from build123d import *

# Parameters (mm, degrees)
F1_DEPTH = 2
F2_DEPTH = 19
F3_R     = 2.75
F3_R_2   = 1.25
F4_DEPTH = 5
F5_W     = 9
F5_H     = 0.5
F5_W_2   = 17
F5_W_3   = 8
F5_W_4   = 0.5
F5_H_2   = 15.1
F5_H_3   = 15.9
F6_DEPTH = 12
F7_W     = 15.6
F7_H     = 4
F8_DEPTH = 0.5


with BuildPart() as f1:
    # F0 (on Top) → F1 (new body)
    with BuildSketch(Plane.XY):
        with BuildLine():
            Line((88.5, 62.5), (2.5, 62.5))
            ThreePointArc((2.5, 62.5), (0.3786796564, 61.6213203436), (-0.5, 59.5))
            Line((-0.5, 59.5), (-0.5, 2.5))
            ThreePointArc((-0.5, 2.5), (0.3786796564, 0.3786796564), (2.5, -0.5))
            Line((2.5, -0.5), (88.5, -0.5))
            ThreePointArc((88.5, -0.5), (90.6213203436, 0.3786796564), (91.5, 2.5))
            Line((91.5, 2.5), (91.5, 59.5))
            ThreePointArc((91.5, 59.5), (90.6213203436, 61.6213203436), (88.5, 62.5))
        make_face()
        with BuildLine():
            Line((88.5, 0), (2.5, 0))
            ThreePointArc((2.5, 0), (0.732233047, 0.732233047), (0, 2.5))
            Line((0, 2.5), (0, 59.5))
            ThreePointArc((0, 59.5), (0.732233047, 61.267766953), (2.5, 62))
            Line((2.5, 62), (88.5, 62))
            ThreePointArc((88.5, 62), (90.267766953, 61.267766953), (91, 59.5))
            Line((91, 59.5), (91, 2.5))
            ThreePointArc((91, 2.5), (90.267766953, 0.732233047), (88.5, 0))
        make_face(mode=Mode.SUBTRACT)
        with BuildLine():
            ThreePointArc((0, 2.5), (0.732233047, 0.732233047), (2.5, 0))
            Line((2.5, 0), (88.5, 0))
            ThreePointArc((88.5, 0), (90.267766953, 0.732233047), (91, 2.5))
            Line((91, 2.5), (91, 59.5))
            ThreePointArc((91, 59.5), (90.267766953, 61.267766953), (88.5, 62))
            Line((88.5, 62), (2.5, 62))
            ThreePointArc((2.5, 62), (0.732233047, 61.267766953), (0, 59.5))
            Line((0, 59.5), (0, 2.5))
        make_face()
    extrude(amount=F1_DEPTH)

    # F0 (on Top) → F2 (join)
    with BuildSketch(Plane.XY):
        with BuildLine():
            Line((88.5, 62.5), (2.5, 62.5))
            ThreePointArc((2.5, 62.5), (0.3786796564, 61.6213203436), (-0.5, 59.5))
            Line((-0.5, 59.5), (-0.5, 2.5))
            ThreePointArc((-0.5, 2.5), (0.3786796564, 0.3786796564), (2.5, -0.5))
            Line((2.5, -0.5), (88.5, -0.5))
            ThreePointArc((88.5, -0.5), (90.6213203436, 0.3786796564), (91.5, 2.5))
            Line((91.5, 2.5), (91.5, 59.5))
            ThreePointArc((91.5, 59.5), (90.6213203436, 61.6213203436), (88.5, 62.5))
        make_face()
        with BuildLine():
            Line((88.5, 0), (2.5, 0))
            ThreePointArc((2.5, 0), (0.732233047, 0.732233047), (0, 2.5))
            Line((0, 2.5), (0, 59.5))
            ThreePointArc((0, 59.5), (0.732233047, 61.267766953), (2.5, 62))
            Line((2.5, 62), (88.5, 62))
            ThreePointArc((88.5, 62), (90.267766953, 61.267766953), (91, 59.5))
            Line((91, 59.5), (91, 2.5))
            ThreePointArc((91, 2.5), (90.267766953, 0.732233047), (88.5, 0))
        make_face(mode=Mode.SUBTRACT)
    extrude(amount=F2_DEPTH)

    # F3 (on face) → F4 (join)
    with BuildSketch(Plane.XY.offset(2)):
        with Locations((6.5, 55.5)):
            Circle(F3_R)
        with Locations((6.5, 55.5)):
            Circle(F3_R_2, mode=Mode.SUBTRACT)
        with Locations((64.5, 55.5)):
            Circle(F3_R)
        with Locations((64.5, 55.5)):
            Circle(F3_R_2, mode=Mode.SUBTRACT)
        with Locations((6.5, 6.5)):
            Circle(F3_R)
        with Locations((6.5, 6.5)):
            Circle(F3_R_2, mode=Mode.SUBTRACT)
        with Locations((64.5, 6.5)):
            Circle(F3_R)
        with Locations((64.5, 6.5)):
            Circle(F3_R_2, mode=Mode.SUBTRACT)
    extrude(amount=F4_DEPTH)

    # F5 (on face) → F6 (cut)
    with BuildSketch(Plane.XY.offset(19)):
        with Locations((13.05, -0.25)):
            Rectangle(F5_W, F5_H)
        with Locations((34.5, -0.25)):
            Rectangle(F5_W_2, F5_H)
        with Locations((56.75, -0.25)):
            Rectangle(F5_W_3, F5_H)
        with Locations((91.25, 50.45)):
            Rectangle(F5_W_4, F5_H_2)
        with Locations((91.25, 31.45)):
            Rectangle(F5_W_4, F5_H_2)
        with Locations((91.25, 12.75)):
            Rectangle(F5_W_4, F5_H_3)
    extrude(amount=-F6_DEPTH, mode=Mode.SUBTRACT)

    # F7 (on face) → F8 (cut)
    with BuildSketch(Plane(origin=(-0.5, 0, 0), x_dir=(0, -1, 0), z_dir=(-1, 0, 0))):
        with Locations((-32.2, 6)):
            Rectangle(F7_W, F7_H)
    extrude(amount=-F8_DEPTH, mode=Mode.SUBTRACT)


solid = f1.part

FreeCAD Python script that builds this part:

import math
import FreeCAD as App
import Part
import Sketcher
from FreeCAD import Vector

doc = App.newDocument("Part")
body = doc.addObject("PartDesign::Body", "Body")

# Sketch on XY plane
sketch1 = doc.addObject("Sketcher::SketchObject", "Sketch")
body.addObject(sketch1)
sketch1.AttachmentSupport = (doc.XY_Plane, [""])
sketch1.MapMode = "FlatFace"
sketch1.addGeometry([
    Part.LineSegment(Vector(88.5, 62.5, 0), Vector(2.5, 62.5, 0)),  # 0
    Part.ArcOfCircle(Part.Circle(Vector(2.5, 59.5, 0), Vector(0, 0, 1), 3), math.radians(90), math.radians(180)),  # 1
    Part.LineSegment(Vector(-0.5, 59.5, 0), Vector(-0.5, 2.5, 0)),  # 2
    Part.ArcOfCircle(Part.Circle(Vector(2.5, 2.5, 0), Vector(0, 0, 1), 3), math.radians(180), math.radians(270)),  # 3
    Part.LineSegment(Vector(2.5, -0.5, 0), Vector(88.5, -0.5, 0)),  # 4
    Part.ArcOfCircle(Part.Circle(Vector(88.5, 2.5, 0), Vector(0, 0, 1), 3), math.radians(-90), math.radians(0)),  # 5
    Part.LineSegment(Vector(91.5, 2.5, 0), Vector(91.5, 59.5, 0)),  # 6
    Part.ArcOfCircle(Part.Circle(Vector(88.5, 59.5, 0), Vector(0, 0, 1), 3), math.radians(0), math.radians(90)),  # 7
], False)
sketch1.addConstraint([
    Sketcher.Constraint("Tangent", 0, 2, 1, 1),
    Sketcher.Constraint("Tangent", 1, 2, 2, 1),
    Sketcher.Constraint("Tangent", 2, 2, 3, 1),
    Sketcher.Constraint("Tangent", 3, 2, 4, 1),
    Sketcher.Constraint("Tangent", 4, 2, 5, 1),
    Sketcher.Constraint("Tangent", 5, 2, 6, 1),
    Sketcher.Constraint("Tangent", 6, 2, 7, 1),
    Sketcher.Constraint("Tangent", 7, 2, 0, 1),
    Sketcher.Constraint("Horizontal", 0),
    Sketcher.Constraint("Vertical", 2),
    Sketcher.Constraint("Horizontal", 4),
    Sketcher.Constraint("Vertical", 6),
    Sketcher.Constraint("Equal", 1, 3),
    Sketcher.Constraint("Equal", 3, 5),
    Sketcher.Constraint("Equal", 5, 7),
    Sketcher.Constraint("Radius", 1, 3.0),
    Sketcher.Constraint("DistanceX", 0, 2, 0, 1, 86.0),
    Sketcher.Constraint("DistanceY", 2, 2, 2, 1, 57.0),
    Sketcher.Constraint("DistanceX", -1, 1, 1, 3, 2.5),
    Sketcher.Constraint("DistanceY", -1, 1, 1, 3, 59.5),
])
pad1 = doc.addObject("PartDesign::Pad", "Pad")
body.addObject(pad1)
pad1.Profile = sketch1
pad1.Length = 2

# Sketch on XY plane
sketch2 = doc.addObject("Sketcher::SketchObject", "Sketch001")
body.addObject(sketch2)
sketch2.AttachmentSupport = (doc.XY_Plane, [""])
sketch2.MapMode = "FlatFace"
sketch2.addGeometry([
    Part.LineSegment(Vector(88.5, 62.5, 0), Vector(2.5, 62.5, 0)),  # 0
    Part.ArcOfCircle(Part.Circle(Vector(2.5, 59.5, 0), Vector(0, 0, 1), 3), math.radians(90), math.radians(180)),  # 1
    Part.LineSegment(Vector(-0.5, 59.5, 0), Vector(-0.5, 2.5, 0)),  # 2
    Part.ArcOfCircle(Part.Circle(Vector(2.5, 2.5, 0), Vector(0, 0, 1), 3), math.radians(180), math.radians(270)),  # 3
    Part.LineSegment(Vector(2.5, -0.5, 0), Vector(88.5, -0.5, 0)),  # 4
    Part.ArcOfCircle(Part.Circle(Vector(88.5, 2.5, 0), Vector(0, 0, 1), 3), math.radians(-90), math.radians(0)),  # 5
    Part.LineSegment(Vector(91.5, 2.5, 0), Vector(91.5, 59.5, 0)),  # 6
    Part.ArcOfCircle(Part.Circle(Vector(88.5, 59.5, 0), Vector(0, 0, 1), 3), math.radians(0), math.radians(90)),  # 7
    Part.ArcOfCircle(Part.Circle(Vector(88.5, 2.5, 0), Vector(0, 0, 1), 2.5), math.radians(-90), math.radians(0)),  # 8
    Part.LineSegment(Vector(88.5, 0, 0), Vector(2.5, 0, 0)),  # 9
    Part.ArcOfCircle(Part.Circle(Vector(2.5, 2.5, 0), Vector(0, 0, 1), 2.5), math.radians(180), math.radians(270)),  # 10
    Part.LineSegment(Vector(0, 2.5, 0), Vector(0, 59.5, 0)),  # 11
    Part.ArcOfCircle(Part.Circle(Vector(2.5, 59.5, 0), Vector(0, 0, 1), 2.5), math.radians(90), math.radians(180)),  # 12
    Part.LineSegment(Vector(2.5, 62, 0), Vector(88.5, 62, 0)),  # 13
    Part.ArcOfCircle(Part.Circle(Vector(88.5, 59.5, 0), Vector(0, 0, 1), 2.5), math.radians(0), math.radians(90)),  # 14
    Part.LineSegment(Vector(91, 59.5, 0), Vector(91, 2.5, 0)),  # 15
], False)
sketch2.addConstraint([
    Sketcher.Constraint("Tangent", 0, 2, 1, 1),
    Sketcher.Constraint("Tangent", 1, 2, 2, 1),
    Sketcher.Constraint("Tangent", 2, 2, 3, 1),
    Sketcher.Constraint("Tangent", 3, 2, 4, 1),
    Sketcher.Constraint("Tangent", 4, 2, 5, 1),
    Sketcher.Constraint("Tangent", 5, 2, 6, 1),
    Sketcher.Constraint("Tangent", 6, 2, 7, 1),
    Sketcher.Constraint("Tangent", 7, 2, 0, 1),
    Sketcher.Constraint("Tangent", 8, 1, 9, 1),
    Sketcher.Constraint("Tangent", 9, 2, 10, 2),
    Sketcher.Constraint("Tangent", 10, 1, 11, 1),
    Sketcher.Constraint("Tangent", 11, 2, 12, 2),
    Sketcher.Constraint("Tangent", 12, 1, 13, 1),
    Sketcher.Constraint("Tangent", 13, 2, 14, 2),
    Sketcher.Constraint("Tangent", 14, 1, 15, 1),
    Sketcher.Constraint("Tangent", 15, 2, 8, 2),
    Sketcher.Constraint("Horizontal", 0),
    Sketcher.Constraint("Vertical", 2),
    Sketcher.Constraint("Horizontal", 4),
    Sketcher.Constraint("Vertical", 6),
    Sketcher.Constraint("Horizontal", 9),
    Sketcher.Constraint("Vertical", 11),
    Sketcher.Constraint("Horizontal", 13),
    Sketcher.Constraint("Vertical", 15),
    Sketcher.Constraint("Coincident", 8, 3, 5, 3),
    Sketcher.Constraint("Coincident", 10, 3, 3, 3),
    Sketcher.Constraint("Coincident", 12, 3, 1, 3),
    Sketcher.Constraint("Equal", 1, 3),
    Sketcher.Constraint("Equal", 3, 5),
    Sketcher.Constraint("Equal", 5, 7),
    Sketcher.Constraint("Equal", 12, 14),
    Sketcher.Constraint("PointOnObject", 8, 1, -1),
    Sketcher.Constraint("PointOnObject", 10, 1, -2),
    Sketcher.Constraint("Radius", 1, 3.0),
    Sketcher.Constraint("Radius", 8, 2.5),
    Sketcher.Constraint("DistanceX", 0, 2, 0, 1, 86.0),
    Sketcher.Constraint("DistanceY", 2, 2, 2, 1, 57.0),
])
pad2 = doc.addObject("PartDesign::Pad", "Pad001")
body.addObject(pad2)
pad2.Profile = sketch2
pad2.Length = 19

# Sketch on XY plane
sketch3 = doc.addObject("Sketcher::SketchObject", "Sketch002")
body.addObject(sketch3)
sketch3.AttachmentSupport = (doc.XY_Plane, [""])
sketch3.MapMode = "FlatFace"
sketch3.AttachmentOffset = App.Placement(Vector(0, 0, 2), App.Rotation())
sketch3.addGeometry([
    Part.Circle(Vector(6.5, 55.5, 0), Vector(0, 0, 1), 2.75),  # 0
    Part.Circle(Vector(6.5, 55.5, 0), Vector(0, 0, 1), 1.25),  # 1
    Part.Circle(Vector(64.5, 55.5, 0), Vector(0, 0, 1), 2.75),  # 2
    Part.Circle(Vector(64.5, 55.5, 0), Vector(0, 0, 1), 1.25),  # 3
    Part.Circle(Vector(6.5, 6.5, 0), Vector(0, 0, 1), 2.75),  # 4
    Part.Circle(Vector(6.5, 6.5, 0), Vector(0, 0, 1), 1.25),  # 5
    Part.Circle(Vector(64.5, 6.5, 0), Vector(0, 0, 1), 2.75),  # 6
    Part.Circle(Vector(64.5, 6.5, 0), Vector(0, 0, 1), 1.25),  # 7
], False)
sketch3.addConstraint([
    Sketcher.Constraint("Coincident", 1, 3, 0, 3),
    Sketcher.Constraint("Coincident", 3, 3, 2, 3),
    Sketcher.Constraint("Coincident", 5, 3, 4, 3),
    Sketcher.Constraint("Coincident", 7, 3, 6, 3),
    Sketcher.Constraint("Equal", 0, 2),
    Sketcher.Constraint("Equal", 1, 3),
    Sketcher.Constraint("Equal", 2, 4),
    Sketcher.Constraint("Equal", 3, 5),
    Sketcher.Constraint("Equal", 4, 6),
    Sketcher.Constraint("Equal", 5, 7),
    Sketcher.Constraint("Horizontal", 1, 3, 2, 3),
    Sketcher.Constraint("Horizontal", 5, 3, 6, 3),
    Sketcher.Constraint("Vertical", 1, 3, 4, 3),
    Sketcher.Constraint("Vertical", 3, 3, 6, 3),
    Sketcher.Constraint("Diameter", 0, 5.5),
    Sketcher.Constraint("Diameter", 1, 2.5),
    Sketcher.Constraint("DistanceX", 0, 3, 2, 3, 58.0),
    Sketcher.Constraint("DistanceY", 4, 3, 0, 3, 49.0),
    Sketcher.Constraint("DistanceX", -1, 1, 0, 3, 6.5),
    Sketcher.Constraint("DistanceY", -1, 1, 0, 3, 55.5),
])
pad3 = doc.addObject("PartDesign::Pad", "Pad002")
body.addObject(pad3)
pad3.Profile = sketch3
pad3.Length = 5

# Sketch on XY plane
sketch4 = doc.addObject("Sketcher::SketchObject", "Sketch003")
body.addObject(sketch4)
sketch4.AttachmentSupport = (doc.XY_Plane, [""])
sketch4.MapMode = "FlatFace"
sketch4.AttachmentOffset = App.Placement(Vector(0, 0, 19), App.Rotation())
sketch4.addGeometry([
    Part.LineSegment(Vector(8.55, 0, 0), Vector(8.55, -0.5, 0)),  # 0
    Part.LineSegment(Vector(8.55, -0.5, 0), Vector(17.55, -0.5, 0)),  # 1
    Part.LineSegment(Vector(17.55, -0.5, 0), Vector(17.55, 0, 0)),  # 2
    Part.LineSegment(Vector(17.55, 0, 0), Vector(8.55, 0, 0)),  # 3
    Part.LineSegment(Vector(26, 0, 0), Vector(26, -0.5, 0)),  # 4
    Part.LineSegment(Vector(26, -0.5, 0), Vector(43, -0.5, 0)),  # 5
    Part.LineSegment(Vector(43, -0.5, 0), Vector(43, 0, 0)),  # 6
    Part.LineSegment(Vector(43, 0, 0), Vector(26, 0, 0)),  # 7
    Part.LineSegment(Vector(52.75, 0, 0), Vector(52.75, -0.5, 0)),  # 8
    Part.LineSegment(Vector(52.75, -0.5, 0), Vector(60.75, -0.5, 0)),  # 9
    Part.LineSegment(Vector(60.75, -0.5, 0), Vector(60.75, 0, 0)),  # 10
    Part.LineSegment(Vector(60.75, 0, 0), Vector(52.75, 0, 0)),  # 11
    Part.LineSegment(Vector(91, 58, 0), Vector(91, 42.9, 0)),  # 12
    Part.LineSegment(Vector(91, 42.9, 0), Vector(91.5, 42.9, 0)),  # 13
    Part.LineSegment(Vector(91.5, 42.9, 0), Vector(91.5, 58, 0)),  # 14
    Part.LineSegment(Vector(91.5, 58, 0), Vector(91, 58, 0)),  # 15
    Part.LineSegment(Vector(91, 39, 0), Vector(91, 23.9, 0)),  # 16
    Part.LineSegment(Vector(91, 23.9, 0), Vector(91.5, 23.9, 0)),  # 17
    Part.LineSegment(Vector(91.5, 23.9, 0), Vector(91.5, 39, 0)),  # 18
    Part.LineSegment(Vector(91.5, 39, 0), Vector(91, 39, 0)),  # 19
    Part.LineSegment(Vector(91, 20.7, 0), Vector(91, 4.8, 0)),  # 20
    Part.LineSegment(Vector(91, 4.8, 0), Vector(91.5, 4.8, 0)),  # 21
    Part.LineSegment(Vector(91.5, 4.8, 0), Vector(91.5, 20.7, 0)),  # 22
    Part.LineSegment(Vector(91.5, 20.7, 0), Vector(91, 20.7, 0)),  # 23
], False)
sketch4.addConstraint([
    Sketcher.Constraint("Coincident", 0, 2, 1, 1),
    Sketcher.Constraint("Coincident", 1, 2, 2, 1),
    Sketcher.Constraint("Coincident", 2, 2, 3, 1),
    Sketcher.Constraint("Coincident", 3, 2, 0, 1),
    Sketcher.Constraint("Coincident", 4, 2, 5, 1),
    Sketcher.Constraint("Coincident", 5, 2, 6, 1),
    Sketcher.Constraint("Coincident", 6, 2, 7, 1),
    Sketcher.Constraint("Coincident", 7, 2, 4, 1),
    Sketcher.Constraint("Coincident", 8, 2, 9, 1),
    Sketcher.Constraint("Coincident", 9, 2, 10, 1),
    Sketcher.Constraint("Coincident", 10, 2, 11, 1),
    Sketcher.Constraint("Coincident", 11, 2, 8, 1),
    Sketcher.Constraint("Coincident", 12, 2, 13, 1),
    Sketcher.Constraint("Coincident", 13, 2, 14, 1),
    Sketcher.Constraint("Coincident", 14, 2, 15, 1),
    Sketcher.Constraint("Coincident", 15, 2, 12, 1),
    Sketcher.Constraint("Coincident", 16, 2, 17, 1),
    Sketcher.Constraint("Coincident", 17, 2, 18, 1),
    Sketcher.Constraint("Coincident", 18, 2, 19, 1),
    Sketcher.Constraint("Coincident", 19, 2, 16, 1),
    Sketcher.Constraint("Coincident", 20, 2, 21, 1),
    Sketcher.Constraint("Coincident", 21, 2, 22, 1),
    Sketcher.Constraint("Coincident", 22, 2, 23, 1),
    Sketcher.Constraint("Coincident", 23, 2, 20, 1),
    Sketcher.Constraint("Vertical", 0),
    Sketcher.Constraint("Horizontal", 1),
    Sketcher.Constraint("Vertical", 2),
    Sketcher.Constraint("Horizontal", 3),
    Sketcher.Constraint("Vertical", 4),
    Sketcher.Constraint("Horizontal", 5),
    Sketcher.Constraint("Vertical", 6),
    Sketcher.Constraint("Horizontal", 7),
    Sketcher.Constraint("Vertical", 8),
    Sketcher.Constraint("Horizontal", 9),
    Sketcher.Constraint("Vertical", 10),
    Sketcher.Constraint("Horizontal", 11),
    Sketcher.Constraint("Vertical", 12),
    Sketcher.Constraint("Horizontal", 13),
    Sketcher.Constraint("Vertical", 14),
    Sketcher.Constraint("Horizontal", 15),
    Sketcher.Constraint("Vertical", 16),
    Sketcher.Constraint("Horizontal", 17),
    Sketcher.Constraint("Vertical", 18),
    Sketcher.Constraint("Horizontal", 19),
    Sketcher.Constraint("Vertical", 20),
    Sketcher.Constraint("Horizontal", 21),
    Sketcher.Constraint("Vertical", 22),
    Sketcher.Constraint("Horizontal", 23),
    Sketcher.Constraint("PointOnObject", 2, 2, -1),
    Sketcher.Constraint("PointOnObject", 6, 2, -1),
    Sketcher.Constraint("PointOnObject", 10, 2, -1),
    Sketcher.Constraint("Horizontal", 1, 2, 4, 2),
    Sketcher.Constraint("Horizontal", 5, 2, 8, 2),
    Sketcher.Constraint("Vertical", 15, 2, 16, 2),
    Sketcher.Constraint("Vertical", 14, 2, 17, 2),
    Sketcher.Constraint("Vertical", 19, 2, 20, 2),
    Sketcher.Constraint("Vertical", 18, 2, 21, 2),
    Sketcher.Constraint("Equal", 23, 0),
    Sketcher.Constraint("Equal", 14, 16),
    Sketcher.Constraint("DistanceX", 1, 1, 1, 2, 9.0),
    Sketcher.Constraint("DistanceX", 5, 1, 5, 2, 17.0),
    Sketcher.Constraint("DistanceX", 9, 1, 9, 2, 8.0),
    Sketcher.Constraint("DistanceX", 13, 1, 13, 2, 0.5),
    Sketcher.Constraint("DistanceY", 12, 2, 12, 1, 15.1),
    Sketcher.Constraint("DistanceY", 20, 2, 20, 1, 15.9),
    Sketcher.Constraint("DistanceX", -1, 1, 4, 2, 26.0),
    Sketcher.Constraint("DistanceX", -1, 1, 12, 2, 91.0),
    Sketcher.Constraint("DistanceY", -1, 1, 14, 2, 58.0),
    Sketcher.Constraint("DistanceY", -1, 1, 18, 2, 39.0),
    Sketcher.Constraint("DistanceY", -1, 1, 20, 2, 4.8),
    Sketcher.Constraint("DistanceX", 1, 2, 8, 2, 35.2),
    Sketcher.Constraint("DistanceX", -1, 1, 0, 2, 8.55),
])
pocket1 = doc.addObject("PartDesign::Pocket", "Pocket")
body.addObject(pocket1)
pocket1.Profile = sketch4
pocket1.Length = 12

# Sketch on YZ plane
sketch5 = doc.addObject("Sketcher::SketchObject", "Sketch004")
body.addObject(sketch5)
sketch5.AttachmentSupport = (doc.YZ_Plane, [""])
sketch5.MapMode = "FlatFace"
sketch5.AttachmentOffset = App.Placement(Vector(0, 0, -0.5), App.Rotation())
sketch5.addGeometry([
    Part.LineSegment(Vector(40, 8, 0), Vector(40, 4, 0)),
    Part.LineSegment(Vector(40, 4, 0), Vector(24.4, 4, 0)),
    Part.LineSegment(Vector(24.4, 4, 0), Vector(24.4, 8, 0)),
    Part.LineSegment(Vector(24.4, 8, 0), Vector(40, 8, 0)),
], False)
sketch5.addConstraint([
    Sketcher.Constraint("Coincident", 0, 2, 1, 1),
    Sketcher.Constraint("Coincident", 1, 2, 2, 1),
    Sketcher.Constraint("Coincident", 2, 2, 3, 1),
    Sketcher.Constraint("Coincident", 3, 2, 0, 1),
    Sketcher.Constraint("Vertical", 0),
    Sketcher.Constraint("Horizontal", 1),
    Sketcher.Constraint("Vertical", 2),
    Sketcher.Constraint("Horizontal", 3),
    Sketcher.Constraint("DistanceY", 0, 2, 0, 1, 4.0),
    Sketcher.Constraint("DistanceX", 1, 2, 1, 1, 15.6),
    Sketcher.Constraint("DistanceX", -1, 1, 0, 2, 40.0),
    Sketcher.Constraint("DistanceY", -1, 1, 0, 2, 4.0),
])
pocket2 = doc.addObject("PartDesign::Pocket", "Pocket001")
body.addObject(pocket2)
pocket2.Profile = sketch5
pocket2.Length = 0.5
pocket2.Reversed = True

doc.recompute()
